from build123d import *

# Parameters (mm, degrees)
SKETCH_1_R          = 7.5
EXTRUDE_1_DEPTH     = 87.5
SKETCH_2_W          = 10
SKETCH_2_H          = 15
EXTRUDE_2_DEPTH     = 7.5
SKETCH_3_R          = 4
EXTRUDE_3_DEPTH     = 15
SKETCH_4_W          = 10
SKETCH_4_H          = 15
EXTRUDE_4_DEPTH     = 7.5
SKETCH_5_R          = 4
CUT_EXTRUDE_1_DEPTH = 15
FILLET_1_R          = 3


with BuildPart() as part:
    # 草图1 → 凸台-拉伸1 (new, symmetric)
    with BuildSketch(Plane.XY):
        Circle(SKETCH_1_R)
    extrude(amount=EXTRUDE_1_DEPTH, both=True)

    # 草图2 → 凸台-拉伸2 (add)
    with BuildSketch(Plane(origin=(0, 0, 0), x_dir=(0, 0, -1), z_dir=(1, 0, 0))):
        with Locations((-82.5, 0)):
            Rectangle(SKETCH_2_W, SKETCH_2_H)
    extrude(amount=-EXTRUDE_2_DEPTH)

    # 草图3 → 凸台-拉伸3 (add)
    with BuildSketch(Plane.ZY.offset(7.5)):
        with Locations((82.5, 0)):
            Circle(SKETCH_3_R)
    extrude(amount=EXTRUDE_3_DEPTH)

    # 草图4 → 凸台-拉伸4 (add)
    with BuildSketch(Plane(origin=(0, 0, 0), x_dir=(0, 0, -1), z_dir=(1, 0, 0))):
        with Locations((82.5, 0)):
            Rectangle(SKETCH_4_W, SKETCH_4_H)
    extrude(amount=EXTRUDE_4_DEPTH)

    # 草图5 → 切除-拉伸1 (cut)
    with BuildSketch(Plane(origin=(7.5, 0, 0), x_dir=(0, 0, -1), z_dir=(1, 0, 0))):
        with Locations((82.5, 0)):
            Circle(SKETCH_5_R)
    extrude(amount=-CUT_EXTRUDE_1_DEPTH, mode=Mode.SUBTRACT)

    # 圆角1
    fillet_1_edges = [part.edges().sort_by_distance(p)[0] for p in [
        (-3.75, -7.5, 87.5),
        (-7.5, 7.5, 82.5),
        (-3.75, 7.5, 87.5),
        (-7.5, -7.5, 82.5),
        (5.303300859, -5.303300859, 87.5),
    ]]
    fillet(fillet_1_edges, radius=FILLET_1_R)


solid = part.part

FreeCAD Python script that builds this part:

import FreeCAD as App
import Part
import Sketcher
from FreeCAD import Vector


def edges_at(feature, points):
    """Names of the edges that pass closest to the given points."""
    edges = feature.Shape.Edges
    near = lambda p: min(range(len(edges)), key=lambda i: edges[i].distToShape(Part.Vertex(*p))[0])
    return sorted({f"Edge{near(p) + 1}" for p in points})

doc = App.newDocument("Part")
body = doc.addObject("PartDesign::Body", "Body")

sketch1 = doc.addObject("Sketcher::SketchObject", "Sketch")
body.addObject(sketch1)
sketch1.AttachmentSupport = (doc.XY_Plane, [""])
sketch1.MapMode = "FlatFace"
sketch1.addGeometry(Part.Circle(Vector(0, 0, 0), Vector(0, 0, 1), 8), False)
sketch1.addConstraint([
    Sketcher.Constraint("Coincident", 0, 3, -1, 1),
    Sketcher.Constraint("Diameter", 0, 15.0),
])
pad1 = doc.addObject("PartDesign::Pad", "Pad")
body.addObject(pad1)
pad1.Profile = sketch1
pad1.Length = 175
pad1.Midplane = True

sketch2 = doc.addObject("Sketcher::SketchObject", "Sketch001")
body.addObject(sketch2)
sketch2.AttachmentSupport = (doc.YZ_Plane, [""])
sketch2.MapMode = "FlatFace"
sketch2.addGeometry([
    Part.LineSegment(Vector(8, 88, 0), Vector(-8, 88, 0)),
    Part.LineSegment(Vector(-8, 88, 0), Vector(-8, 78, 0)),
    Part.LineSegment(Vector(-8, 78, 0), Vector(8, 78, 0)),
    Part.LineSegment(Vector(8, 78, 0), Vector(8, 88, 0)),
], False)
sketch2.addConstraint([
    Sketcher.Constraint("Coincident", 0, 2, 1, 1),
    Sketcher.Constraint("Coincident", 1, 2, 2, 1),
    Sketcher.Constraint("Coincident", 2, 2, 3, 1),
    Sketcher.Constraint("Coincident", 3, 2, 0, 1),
    Sketcher.Constraint("Horizontal", 0),
    Sketcher.Constraint("Vertical", 1),
    Sketcher.Constraint("Horizontal", 2),
    Sketcher.Constraint("Vertical", 3),
    Sketcher.Constraint("DistanceX", 0, 2, 0, 1, 15.0),
    Sketcher.Constraint("DistanceY", 1, 2, 1, 1, 10.0),
    Sketcher.Constraint("DistanceX", 0, 2, -1, 1, 7.5),
    Sketcher.Constraint("DistanceY", -1, 1, 0, 2, 87.5),
])
pad2 = doc.addObject("PartDesign::Pad", "Pad001")
body.addObject(pad2)
pad2.Profile = sketch2
pad2.Length = 7.5
pad2.Reversed = True

sketch3 = doc.addObject("Sketcher::SketchObject", "Sketch002")
body.addObject(sketch3)
sketch3.AttachmentSupport = (doc.YZ_Plane, [""])
sketch3.MapMode = "FlatFace"
sketch3.AttachmentOffset = App.Placement(Vector(0, 0, -7.5), App.Rotation())
sketch3.addGeometry(Part.Circle(Vector(0, 82.5, 0), Vector(0, 0, 1), 4), False)
sketch3.addConstraint([
    Sketcher.Constraint("PointOnObject", 0, 3, -2),
    Sketcher.Constraint("Diameter", 0, 8.0),
    Sketcher.Constraint("DistanceY", -1, 1, 0, 3, 82.5),
])
pad3 = doc.addObject("PartDesign::Pad", "Pad002")
body.addObject(pad3)
pad3.Profile = sketch3
pad3.Length = 15
pad3.Reversed = True

sketch4 = doc.addObject("Sketcher::SketchObject", "Sketch003")
body.addObject(sketch4)
sketch4.AttachmentSupport = (doc.YZ_Plane, [""])
sketch4.MapMode = "FlatFace"
sketch4.addGeometry([
    Part.LineSegment(Vector(8, -78, 0), Vector(-8, -78, 0)),
    Part.LineSegment(Vector(-8, -78, 0), Vector(-8, -88, 0)),
    Part.LineSegment(Vector(-8, -88, 0), Vector(8, -88, 0)),
    Part.LineSegment(Vector(8, -88, 0), Vector(8, -78, 0)),
], False)
sketch4.addConstraint([
    Sketcher.Constraint("Coincident", 0, 2, 1, 1),
    Sketcher.Constraint("Coincident", 1, 2, 2, 1),
    Sketcher.Constraint("Coincident", 2, 2, 3, 1),
    Sketcher.Constraint("Coincident", 3, 2, 0, 1),
    Sketcher.Constraint("Horizontal", 0),
    Sketcher.Constraint("Vertical", 1),
    Sketcher.Constraint("Horizontal", 2),
    Sketcher.Constraint("Vertical", 3),
    Sketcher.Constraint("DistanceX", 0, 2, 0, 1, 15.0),
    Sketcher.Constraint("DistanceY", 1, 2, 1, 1, 10.0),
    Sketcher.Constraint("DistanceX", 0, 2, -1, 1, 7.5),
    Sketcher.Constraint("DistanceY", 0, 2, -1, 1, 77.5),
])
pad4 = doc.addObject("PartDesign::Pad", "Pad003")
body.addObject(pad4)
pad4.Profile = sketch4
pad4.Length = 7.5

sketch5 = doc.addObject("Sketcher::SketchObject", "Sketch004")
body.addObject(sketch5)
sketch5.AttachmentSupport = (doc.YZ_Plane, [""])
sketch5.MapMode = "FlatFace"
sketch5.AttachmentOffset = App.Placement(Vector(0, 0, 7.5), App.Rotation())
sketch5.addGeometry(Part.Circle(Vector(0, -82.5, 0), Vector(0, 0, 1), 4), False)
sketch5.addConstraint([
    Sketcher.Constraint("PointOnObject", 0, 3, -2),
    Sketcher.Constraint("Diameter", 0, 8.0),
    Sketcher.Constraint("DistanceY", 0, 3, -1, 1, 82.5),
])
pocket1 = doc.addObject("PartDesign::Pocket", "Pocket")
body.addObject(pocket1)
pocket1.Profile = sketch5
pocket1.Length = 15
doc.recompute()

fillet = doc.addObject("PartDesign::Fillet", "Fillet")
body.addObject(fillet)
fillet.Base = (pocket1, edges_at(pocket1, [
    (-3.75, -7.5, 87.5),
    (-7.5, 7.5, 82.5),
    (-3.75, 7.5, 87.5),
    (-7.5, -7.5, 82.5),
    (5.303, -5.303, 87.5),
]))
fillet.Radius = 3

doc.recompute()
